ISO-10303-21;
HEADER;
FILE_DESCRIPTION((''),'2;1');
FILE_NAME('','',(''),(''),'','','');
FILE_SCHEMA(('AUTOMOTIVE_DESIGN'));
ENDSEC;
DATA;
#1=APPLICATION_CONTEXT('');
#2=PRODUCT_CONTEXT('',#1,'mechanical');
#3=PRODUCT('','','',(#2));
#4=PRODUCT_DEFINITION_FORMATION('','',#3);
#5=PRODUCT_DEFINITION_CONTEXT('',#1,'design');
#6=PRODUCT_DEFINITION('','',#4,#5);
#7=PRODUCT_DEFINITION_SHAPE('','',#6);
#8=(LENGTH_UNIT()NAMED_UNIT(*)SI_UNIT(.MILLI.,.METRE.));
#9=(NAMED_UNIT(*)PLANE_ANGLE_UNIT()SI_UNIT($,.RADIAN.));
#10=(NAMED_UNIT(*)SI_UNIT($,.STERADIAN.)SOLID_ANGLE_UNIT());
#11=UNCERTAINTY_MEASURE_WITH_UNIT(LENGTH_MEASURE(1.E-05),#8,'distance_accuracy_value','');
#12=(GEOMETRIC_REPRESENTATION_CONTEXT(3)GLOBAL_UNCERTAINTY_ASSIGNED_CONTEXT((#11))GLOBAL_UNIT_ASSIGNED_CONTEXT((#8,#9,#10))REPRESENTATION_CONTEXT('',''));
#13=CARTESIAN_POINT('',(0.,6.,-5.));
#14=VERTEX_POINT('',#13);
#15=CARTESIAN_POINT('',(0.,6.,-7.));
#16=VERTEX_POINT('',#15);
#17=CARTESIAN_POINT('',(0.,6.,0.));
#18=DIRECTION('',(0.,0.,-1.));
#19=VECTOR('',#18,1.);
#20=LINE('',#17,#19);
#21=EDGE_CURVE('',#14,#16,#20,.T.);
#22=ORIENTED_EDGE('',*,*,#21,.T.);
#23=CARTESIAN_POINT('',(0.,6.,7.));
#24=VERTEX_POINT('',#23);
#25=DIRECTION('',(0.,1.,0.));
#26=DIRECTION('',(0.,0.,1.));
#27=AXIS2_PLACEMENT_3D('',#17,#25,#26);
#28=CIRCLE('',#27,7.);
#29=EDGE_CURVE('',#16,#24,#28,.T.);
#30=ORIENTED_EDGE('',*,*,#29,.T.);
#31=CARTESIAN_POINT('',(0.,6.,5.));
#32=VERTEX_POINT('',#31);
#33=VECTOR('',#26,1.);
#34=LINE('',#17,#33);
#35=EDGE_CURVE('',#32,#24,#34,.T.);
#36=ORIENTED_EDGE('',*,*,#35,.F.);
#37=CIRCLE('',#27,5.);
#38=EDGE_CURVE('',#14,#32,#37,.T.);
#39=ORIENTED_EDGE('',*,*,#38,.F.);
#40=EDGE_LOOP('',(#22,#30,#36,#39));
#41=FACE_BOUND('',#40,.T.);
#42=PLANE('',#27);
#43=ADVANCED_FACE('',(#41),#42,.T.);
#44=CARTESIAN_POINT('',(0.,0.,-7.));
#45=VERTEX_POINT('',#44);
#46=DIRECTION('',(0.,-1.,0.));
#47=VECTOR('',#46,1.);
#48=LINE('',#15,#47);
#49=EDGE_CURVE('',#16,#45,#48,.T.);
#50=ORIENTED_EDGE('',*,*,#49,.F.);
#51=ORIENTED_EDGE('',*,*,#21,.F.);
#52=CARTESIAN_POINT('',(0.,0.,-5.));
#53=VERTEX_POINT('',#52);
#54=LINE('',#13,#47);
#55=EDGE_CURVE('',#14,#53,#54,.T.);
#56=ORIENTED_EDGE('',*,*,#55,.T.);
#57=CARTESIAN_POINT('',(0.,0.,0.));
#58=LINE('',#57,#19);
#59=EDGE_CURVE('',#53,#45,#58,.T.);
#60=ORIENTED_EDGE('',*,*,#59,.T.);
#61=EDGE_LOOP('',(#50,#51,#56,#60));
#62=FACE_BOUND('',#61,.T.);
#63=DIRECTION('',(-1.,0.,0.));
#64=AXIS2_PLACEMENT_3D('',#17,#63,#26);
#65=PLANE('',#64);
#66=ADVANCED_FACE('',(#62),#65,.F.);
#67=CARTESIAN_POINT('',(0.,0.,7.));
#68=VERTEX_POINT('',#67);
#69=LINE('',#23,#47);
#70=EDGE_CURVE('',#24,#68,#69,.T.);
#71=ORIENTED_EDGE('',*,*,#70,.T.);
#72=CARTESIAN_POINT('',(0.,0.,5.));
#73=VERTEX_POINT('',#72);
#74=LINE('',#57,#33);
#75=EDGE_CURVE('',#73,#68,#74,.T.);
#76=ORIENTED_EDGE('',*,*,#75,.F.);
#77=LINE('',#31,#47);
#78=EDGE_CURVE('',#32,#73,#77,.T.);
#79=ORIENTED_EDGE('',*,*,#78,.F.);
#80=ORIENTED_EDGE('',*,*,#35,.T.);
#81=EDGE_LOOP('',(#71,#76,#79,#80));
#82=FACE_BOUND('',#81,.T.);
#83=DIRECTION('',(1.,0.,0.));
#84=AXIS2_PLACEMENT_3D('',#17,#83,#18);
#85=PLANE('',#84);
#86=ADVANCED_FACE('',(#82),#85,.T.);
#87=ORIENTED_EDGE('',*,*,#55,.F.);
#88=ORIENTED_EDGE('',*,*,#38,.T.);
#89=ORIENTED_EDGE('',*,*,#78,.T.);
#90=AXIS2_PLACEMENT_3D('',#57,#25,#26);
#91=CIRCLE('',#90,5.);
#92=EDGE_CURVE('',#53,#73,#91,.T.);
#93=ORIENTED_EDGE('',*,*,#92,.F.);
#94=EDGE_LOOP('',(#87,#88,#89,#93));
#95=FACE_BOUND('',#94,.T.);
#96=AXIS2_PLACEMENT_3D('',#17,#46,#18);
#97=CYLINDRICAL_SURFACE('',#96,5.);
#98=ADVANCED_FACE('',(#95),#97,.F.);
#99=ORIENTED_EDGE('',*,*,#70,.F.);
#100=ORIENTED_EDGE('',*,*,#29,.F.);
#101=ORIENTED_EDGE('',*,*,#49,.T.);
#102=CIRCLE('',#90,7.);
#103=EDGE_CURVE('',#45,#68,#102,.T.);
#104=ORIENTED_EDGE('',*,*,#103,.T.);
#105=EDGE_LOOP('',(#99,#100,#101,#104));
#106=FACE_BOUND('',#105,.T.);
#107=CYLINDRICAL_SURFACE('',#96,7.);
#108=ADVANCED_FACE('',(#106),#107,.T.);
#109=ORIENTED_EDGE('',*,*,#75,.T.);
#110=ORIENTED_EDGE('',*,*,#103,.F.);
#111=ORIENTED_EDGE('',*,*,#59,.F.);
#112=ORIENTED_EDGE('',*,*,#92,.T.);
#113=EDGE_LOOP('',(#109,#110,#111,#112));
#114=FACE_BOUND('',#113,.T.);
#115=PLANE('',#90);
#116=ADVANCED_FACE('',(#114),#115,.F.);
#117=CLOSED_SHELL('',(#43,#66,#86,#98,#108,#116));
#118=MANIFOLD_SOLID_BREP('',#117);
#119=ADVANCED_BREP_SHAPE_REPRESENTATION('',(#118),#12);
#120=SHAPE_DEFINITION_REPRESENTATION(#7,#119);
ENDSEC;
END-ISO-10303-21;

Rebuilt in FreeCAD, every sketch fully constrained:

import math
import FreeCAD as App
import Part
import Sketcher

V = App.Vector
Q = App.Units.Quantity

doc = App.newDocument("Part")
body = doc.addObject("PartDesign::Body", "Body")

sketch1 = doc.addObject("Sketcher::SketchObject", "Sketch")
body.addObject(sketch1)
sketch1.AttachmentSupport = (doc.XZ_Plane, [""])
sketch1.MapMode = "FlatFace"
sketch1.addGeometry([
    Part.LineSegment(V(0, -5, 0), V(0, -7, 0)),
    Part.ArcOfCircle(Part.Circle(V(0, 0, 0), V(0, 0, 1), 7), math.radians(90), math.radians(270)),
    Part.LineSegment(V(0, 7, 0), V(0, 5, 0)),
    Part.ArcOfCircle(Part.Circle(V(0, 0, 0), V(0, 0, 1), 5), math.radians(90), math.radians(270)),
], False)
sketch1.addConstraint([
    Sketcher.Constraint("Coincident", 0, 2, 1, 2),
    Sketcher.Constraint("Coincident", 1, 1, 2, 1),
    Sketcher.Constraint("Coincident", 2, 2, 3, 1),
    Sketcher.Constraint("Coincident", 3, 2, 0, 1),
    Sketcher.Constraint("Vertical", 0),
    Sketcher.Constraint("Vertical", 2),
    Sketcher.Constraint("Coincident", 1, 3, -1, 1),
    Sketcher.Constraint("Coincident", 3, 3, -1, 1),
    Sketcher.Constraint("PointOnObject", 0, 2, -2),
    Sketcher.Constraint("PointOnObject", 1, 1, -2),
    Sketcher.Constraint("Radius", 1, Q("7 mm")),
    Sketcher.Constraint("Radius", 3, Q("5 mm")),
])
pad1 = doc.addObject("PartDesign::Pad", "Pad")
body.addObject(pad1)
pad1.Profile = sketch1
pad1.Length = 6
pad1.Reversed = True

doc.recompute()
